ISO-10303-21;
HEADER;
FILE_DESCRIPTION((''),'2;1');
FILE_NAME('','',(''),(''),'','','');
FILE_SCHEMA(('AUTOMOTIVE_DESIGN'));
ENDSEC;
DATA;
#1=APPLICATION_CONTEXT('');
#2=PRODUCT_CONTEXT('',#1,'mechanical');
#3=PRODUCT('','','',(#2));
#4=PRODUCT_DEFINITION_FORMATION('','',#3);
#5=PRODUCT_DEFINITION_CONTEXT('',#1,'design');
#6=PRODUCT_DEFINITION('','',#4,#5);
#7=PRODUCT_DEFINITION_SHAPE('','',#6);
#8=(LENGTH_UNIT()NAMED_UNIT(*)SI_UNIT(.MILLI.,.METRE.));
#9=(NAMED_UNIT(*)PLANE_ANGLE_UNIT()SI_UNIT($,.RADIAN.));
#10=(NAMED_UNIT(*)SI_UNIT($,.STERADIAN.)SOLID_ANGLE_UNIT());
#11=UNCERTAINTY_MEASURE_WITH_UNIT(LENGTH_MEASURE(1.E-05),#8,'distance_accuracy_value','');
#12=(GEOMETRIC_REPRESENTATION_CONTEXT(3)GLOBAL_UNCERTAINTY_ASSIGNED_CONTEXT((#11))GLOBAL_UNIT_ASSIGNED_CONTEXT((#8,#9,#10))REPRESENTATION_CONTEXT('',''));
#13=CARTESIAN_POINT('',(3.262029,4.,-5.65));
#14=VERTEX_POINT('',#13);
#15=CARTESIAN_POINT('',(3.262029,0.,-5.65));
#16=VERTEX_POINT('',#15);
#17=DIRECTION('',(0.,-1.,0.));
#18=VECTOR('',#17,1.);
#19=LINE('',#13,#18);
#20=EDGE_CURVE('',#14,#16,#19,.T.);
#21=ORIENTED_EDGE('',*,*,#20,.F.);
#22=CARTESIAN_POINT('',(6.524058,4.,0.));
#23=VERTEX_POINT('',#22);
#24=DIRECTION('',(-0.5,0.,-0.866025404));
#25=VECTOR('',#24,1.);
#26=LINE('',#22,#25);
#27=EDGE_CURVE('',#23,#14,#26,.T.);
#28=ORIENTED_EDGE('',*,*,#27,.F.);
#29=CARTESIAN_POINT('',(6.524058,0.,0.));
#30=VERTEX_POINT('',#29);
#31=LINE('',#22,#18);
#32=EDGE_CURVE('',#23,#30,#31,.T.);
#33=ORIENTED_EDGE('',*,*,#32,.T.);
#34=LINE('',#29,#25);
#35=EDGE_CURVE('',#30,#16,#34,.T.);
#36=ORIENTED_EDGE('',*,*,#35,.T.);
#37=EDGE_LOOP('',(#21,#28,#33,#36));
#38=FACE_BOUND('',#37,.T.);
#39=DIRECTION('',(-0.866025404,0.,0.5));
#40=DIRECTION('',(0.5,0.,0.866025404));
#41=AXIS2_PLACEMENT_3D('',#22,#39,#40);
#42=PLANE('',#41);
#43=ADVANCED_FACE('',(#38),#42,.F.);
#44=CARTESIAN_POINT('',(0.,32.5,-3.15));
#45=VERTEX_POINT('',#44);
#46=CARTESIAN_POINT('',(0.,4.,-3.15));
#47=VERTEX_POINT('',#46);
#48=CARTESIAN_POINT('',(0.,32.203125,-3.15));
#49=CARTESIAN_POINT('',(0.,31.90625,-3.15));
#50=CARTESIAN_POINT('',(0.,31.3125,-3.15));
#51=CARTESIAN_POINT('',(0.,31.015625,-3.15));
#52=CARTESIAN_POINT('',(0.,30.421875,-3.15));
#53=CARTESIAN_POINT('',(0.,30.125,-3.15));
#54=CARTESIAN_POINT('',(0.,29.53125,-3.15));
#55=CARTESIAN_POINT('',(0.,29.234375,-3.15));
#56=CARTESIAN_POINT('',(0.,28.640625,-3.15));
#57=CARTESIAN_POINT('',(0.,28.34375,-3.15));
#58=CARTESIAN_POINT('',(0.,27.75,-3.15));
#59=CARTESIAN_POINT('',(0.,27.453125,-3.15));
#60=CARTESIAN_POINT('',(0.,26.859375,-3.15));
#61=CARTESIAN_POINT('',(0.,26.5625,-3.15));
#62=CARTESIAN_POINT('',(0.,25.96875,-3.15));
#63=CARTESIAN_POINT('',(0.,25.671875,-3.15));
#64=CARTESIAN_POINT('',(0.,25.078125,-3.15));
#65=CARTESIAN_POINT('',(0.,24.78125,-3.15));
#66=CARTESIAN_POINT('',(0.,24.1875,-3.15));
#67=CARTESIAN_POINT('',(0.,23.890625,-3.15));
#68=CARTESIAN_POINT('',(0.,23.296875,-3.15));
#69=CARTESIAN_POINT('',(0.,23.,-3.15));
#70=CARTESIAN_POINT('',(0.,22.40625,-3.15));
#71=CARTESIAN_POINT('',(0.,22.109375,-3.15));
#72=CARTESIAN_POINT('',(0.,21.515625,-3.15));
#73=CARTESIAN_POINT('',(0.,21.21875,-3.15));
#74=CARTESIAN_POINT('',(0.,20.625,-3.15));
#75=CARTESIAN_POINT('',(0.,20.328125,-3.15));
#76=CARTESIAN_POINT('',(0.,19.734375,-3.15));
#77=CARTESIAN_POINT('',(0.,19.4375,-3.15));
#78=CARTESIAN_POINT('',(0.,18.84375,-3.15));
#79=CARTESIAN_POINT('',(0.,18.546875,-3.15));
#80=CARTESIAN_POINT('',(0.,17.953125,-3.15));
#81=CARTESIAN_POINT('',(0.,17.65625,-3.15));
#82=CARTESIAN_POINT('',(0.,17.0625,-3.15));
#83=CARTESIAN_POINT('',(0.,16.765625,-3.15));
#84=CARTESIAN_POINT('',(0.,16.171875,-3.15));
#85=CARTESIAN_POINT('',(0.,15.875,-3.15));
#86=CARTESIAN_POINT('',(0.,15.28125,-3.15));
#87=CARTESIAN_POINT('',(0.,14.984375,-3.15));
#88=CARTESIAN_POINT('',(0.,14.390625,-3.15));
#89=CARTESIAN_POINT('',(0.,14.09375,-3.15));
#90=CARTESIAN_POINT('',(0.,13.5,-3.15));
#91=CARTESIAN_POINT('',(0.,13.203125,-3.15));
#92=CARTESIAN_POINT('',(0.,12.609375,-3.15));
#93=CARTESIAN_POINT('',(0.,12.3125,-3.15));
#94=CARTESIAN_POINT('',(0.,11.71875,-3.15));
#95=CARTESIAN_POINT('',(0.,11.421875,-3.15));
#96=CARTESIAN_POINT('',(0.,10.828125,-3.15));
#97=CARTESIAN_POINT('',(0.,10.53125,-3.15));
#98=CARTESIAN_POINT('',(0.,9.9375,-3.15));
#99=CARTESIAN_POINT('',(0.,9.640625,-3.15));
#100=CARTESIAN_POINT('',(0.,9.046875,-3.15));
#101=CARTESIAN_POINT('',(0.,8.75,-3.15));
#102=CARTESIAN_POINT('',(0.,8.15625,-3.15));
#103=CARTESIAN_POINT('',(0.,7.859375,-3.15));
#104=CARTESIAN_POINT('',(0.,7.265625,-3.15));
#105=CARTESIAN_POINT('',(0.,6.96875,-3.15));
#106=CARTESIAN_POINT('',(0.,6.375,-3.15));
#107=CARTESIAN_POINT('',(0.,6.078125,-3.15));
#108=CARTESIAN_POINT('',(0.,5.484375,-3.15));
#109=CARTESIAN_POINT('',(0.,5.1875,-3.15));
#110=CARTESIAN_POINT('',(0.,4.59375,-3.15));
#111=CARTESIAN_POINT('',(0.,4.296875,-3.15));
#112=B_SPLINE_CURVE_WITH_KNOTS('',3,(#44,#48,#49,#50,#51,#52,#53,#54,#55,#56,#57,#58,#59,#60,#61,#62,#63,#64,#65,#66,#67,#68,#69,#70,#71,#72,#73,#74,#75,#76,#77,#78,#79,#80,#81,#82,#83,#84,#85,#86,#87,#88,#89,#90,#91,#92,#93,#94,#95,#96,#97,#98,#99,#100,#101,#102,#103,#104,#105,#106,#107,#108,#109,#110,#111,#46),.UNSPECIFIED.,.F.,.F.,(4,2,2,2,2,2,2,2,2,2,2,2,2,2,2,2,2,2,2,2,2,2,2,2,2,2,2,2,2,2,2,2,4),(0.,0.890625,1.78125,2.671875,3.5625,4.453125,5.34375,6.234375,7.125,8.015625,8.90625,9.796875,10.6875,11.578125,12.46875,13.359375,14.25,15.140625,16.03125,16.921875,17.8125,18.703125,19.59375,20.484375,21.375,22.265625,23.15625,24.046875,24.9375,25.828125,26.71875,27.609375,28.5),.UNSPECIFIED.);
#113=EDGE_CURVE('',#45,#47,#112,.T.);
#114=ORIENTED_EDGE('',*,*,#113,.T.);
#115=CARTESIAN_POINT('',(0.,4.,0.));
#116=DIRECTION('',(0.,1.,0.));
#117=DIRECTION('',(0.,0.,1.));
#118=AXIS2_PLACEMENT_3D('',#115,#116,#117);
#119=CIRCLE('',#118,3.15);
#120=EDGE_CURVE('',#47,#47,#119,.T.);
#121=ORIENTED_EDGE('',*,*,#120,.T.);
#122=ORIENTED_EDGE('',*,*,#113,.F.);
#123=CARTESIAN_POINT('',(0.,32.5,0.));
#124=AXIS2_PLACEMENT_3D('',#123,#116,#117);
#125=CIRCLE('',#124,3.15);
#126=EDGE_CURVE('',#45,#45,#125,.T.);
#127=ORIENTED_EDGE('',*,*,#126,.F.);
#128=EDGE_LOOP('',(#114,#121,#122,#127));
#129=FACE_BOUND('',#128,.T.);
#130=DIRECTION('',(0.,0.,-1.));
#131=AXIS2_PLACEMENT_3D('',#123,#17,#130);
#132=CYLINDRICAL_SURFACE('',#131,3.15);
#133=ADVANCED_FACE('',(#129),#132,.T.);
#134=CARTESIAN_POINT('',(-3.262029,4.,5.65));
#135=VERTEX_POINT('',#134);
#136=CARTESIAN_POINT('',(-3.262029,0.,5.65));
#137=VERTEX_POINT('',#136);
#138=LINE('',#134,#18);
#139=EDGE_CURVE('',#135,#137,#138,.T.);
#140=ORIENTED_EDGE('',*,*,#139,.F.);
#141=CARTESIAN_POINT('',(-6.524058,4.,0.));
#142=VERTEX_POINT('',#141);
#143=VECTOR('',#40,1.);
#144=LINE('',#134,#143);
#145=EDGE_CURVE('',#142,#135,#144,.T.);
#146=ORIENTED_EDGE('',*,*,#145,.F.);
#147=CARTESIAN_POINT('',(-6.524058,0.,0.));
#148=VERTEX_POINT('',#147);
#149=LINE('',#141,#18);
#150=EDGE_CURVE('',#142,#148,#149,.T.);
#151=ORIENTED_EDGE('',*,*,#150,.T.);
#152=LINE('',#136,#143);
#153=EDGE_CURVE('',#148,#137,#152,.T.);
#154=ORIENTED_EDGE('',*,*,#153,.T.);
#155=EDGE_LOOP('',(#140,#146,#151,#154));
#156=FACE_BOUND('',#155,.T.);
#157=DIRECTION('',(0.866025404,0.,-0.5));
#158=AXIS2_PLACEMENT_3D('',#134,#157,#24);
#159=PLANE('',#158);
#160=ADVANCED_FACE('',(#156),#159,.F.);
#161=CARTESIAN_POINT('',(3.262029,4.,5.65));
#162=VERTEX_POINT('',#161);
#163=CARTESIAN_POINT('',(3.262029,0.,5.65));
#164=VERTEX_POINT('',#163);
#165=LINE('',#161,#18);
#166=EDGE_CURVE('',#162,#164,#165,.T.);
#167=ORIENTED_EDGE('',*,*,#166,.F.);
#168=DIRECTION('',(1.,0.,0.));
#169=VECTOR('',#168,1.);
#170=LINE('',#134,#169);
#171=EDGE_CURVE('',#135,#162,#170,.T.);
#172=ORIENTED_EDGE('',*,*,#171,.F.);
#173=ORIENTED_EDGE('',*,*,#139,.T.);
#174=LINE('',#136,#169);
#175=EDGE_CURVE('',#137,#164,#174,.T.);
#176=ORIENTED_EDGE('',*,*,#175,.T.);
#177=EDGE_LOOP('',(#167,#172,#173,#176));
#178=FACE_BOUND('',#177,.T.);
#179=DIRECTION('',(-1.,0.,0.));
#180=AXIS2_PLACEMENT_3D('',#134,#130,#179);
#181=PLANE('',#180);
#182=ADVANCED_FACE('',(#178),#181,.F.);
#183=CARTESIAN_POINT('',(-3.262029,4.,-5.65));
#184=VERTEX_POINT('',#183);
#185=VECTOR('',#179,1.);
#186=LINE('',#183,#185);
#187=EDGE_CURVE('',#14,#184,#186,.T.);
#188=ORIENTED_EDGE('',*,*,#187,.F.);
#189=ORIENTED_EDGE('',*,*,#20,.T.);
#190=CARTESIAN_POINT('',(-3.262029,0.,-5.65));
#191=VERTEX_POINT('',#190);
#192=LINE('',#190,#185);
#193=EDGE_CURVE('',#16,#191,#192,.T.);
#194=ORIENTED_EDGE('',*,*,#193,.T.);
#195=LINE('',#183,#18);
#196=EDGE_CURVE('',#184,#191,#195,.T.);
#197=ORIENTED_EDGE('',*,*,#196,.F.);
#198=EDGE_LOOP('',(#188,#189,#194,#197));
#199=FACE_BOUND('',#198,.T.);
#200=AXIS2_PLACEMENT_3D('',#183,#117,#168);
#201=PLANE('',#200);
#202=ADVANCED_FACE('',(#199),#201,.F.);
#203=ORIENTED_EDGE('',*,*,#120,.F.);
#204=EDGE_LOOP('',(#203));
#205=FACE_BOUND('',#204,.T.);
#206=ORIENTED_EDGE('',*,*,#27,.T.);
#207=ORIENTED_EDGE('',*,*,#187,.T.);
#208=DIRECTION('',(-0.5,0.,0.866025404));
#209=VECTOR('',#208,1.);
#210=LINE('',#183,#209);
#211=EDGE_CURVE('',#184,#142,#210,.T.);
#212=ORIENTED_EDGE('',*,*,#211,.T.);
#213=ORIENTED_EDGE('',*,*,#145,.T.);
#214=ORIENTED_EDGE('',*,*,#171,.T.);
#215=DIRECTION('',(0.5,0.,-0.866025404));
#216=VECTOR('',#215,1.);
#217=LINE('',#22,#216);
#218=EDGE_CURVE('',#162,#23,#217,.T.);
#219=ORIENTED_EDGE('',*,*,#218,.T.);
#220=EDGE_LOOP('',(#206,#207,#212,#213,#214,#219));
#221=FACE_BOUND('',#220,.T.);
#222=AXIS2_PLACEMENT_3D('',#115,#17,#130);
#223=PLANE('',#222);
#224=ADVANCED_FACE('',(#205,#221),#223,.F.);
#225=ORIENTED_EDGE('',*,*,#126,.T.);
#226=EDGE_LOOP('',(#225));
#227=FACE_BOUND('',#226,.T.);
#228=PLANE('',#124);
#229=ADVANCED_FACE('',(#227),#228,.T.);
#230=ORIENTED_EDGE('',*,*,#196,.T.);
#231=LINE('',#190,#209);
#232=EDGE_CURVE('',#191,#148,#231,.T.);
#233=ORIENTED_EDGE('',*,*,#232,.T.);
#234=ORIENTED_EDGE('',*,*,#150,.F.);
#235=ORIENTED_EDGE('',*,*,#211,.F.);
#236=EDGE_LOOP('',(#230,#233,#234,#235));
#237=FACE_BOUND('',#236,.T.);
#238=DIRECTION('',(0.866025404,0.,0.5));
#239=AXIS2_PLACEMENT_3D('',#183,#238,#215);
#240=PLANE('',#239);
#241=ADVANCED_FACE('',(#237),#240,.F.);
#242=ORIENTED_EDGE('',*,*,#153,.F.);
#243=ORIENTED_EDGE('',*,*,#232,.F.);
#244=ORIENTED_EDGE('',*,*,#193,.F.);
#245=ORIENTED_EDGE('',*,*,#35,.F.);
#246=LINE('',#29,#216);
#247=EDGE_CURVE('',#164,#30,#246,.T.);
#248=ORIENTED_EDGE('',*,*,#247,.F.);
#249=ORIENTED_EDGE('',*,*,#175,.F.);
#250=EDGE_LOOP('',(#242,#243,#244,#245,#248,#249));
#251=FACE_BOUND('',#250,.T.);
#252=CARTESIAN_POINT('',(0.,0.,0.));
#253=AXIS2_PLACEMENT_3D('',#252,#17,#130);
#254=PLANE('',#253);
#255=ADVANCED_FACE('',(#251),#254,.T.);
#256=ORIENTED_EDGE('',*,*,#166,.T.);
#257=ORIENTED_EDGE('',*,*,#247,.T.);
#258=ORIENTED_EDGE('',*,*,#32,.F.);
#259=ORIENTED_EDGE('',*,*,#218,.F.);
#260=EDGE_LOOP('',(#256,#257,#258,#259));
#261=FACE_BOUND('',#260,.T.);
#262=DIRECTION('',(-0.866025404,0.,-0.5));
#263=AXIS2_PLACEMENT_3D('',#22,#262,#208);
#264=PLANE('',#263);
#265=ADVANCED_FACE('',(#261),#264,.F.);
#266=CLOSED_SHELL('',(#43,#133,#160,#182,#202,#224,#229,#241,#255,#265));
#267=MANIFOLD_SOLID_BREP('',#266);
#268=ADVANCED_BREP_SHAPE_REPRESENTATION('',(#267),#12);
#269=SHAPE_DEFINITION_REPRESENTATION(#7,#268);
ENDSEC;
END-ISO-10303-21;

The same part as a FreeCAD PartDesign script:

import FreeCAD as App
import Part
import Sketcher
from FreeCAD import Vector
Q = App.Units.Quantity

doc = App.newDocument("Part")
body = doc.addObject("PartDesign::Body", "Body")

# Sketch on XZ plane
sketch1 = doc.addObject("Sketcher::SketchObject", "Sketch")
body.addObject(sketch1)
sketch1.AttachmentSupport = (doc.XZ_Plane, [""])
sketch1.MapMode = "FlatFace"
sketch1.addGeometry(Part.LineSegment(Vector(3.262029, -5.65, 0), Vector(-3.262029, -5.65, 0)), False)
sketch1.addGeometry(Part.LineSegment(Vector(-3.262029, -5.65, 0), Vector(-6.524058, 0, 0)), False)
sketch1.addGeometry(Part.LineSegment(Vector(-6.524058, 0, 0), Vector(-3.262029, 5.65, 0)), False)
sketch1.addGeometry(Part.LineSegment(Vector(-3.262029, 5.65, 0), Vector(3.262029, 5.65, 0)), False)
sketch1.addGeometry(Part.LineSegment(Vector(3.262029, 5.65, 0), Vector(6.524058, 0, 0)), False)
sketch1.addGeometry(Part.LineSegment(Vector(6.524058, 0, 0), Vector(3.262029, -5.65, 0)), False)
sketch1.addConstraint(Sketcher.Constraint("Coincident", 0, 2, 1, 1))
sketch1.addConstraint(Sketcher.Constraint("Coincident", 1, 2, 2, 1))
sketch1.addConstraint(Sketcher.Constraint("Coincident", 2, 2, 3, 1))
sketch1.addConstraint(Sketcher.Constraint("Coincident", 3, 2, 4, 1))
sketch1.addConstraint(Sketcher.Constraint("Coincident", 4, 2, 5, 1))
sketch1.addConstraint(Sketcher.Constraint("Coincident", 5, 2, 0, 1))
sketch1.addConstraint(Sketcher.Constraint("Horizontal", 0))
sketch1.addConstraint(Sketcher.Constraint("Horizontal", 3))
sketch1.addConstraint(Sketcher.Constraint("Symmetric", 0, 2, 3, 2, -1, 1))
sketch1.addConstraint(Sketcher.Constraint("Symmetric", 1, 2, 4, 2, -1, 1))
sketch1.addConstraint(Sketcher.Constraint("PointOnObject", 1, 2, -1))
sketch1.addConstraint(Sketcher.Constraint("Parallel", 2, 5))
sketch1.addConstraint(Sketcher.Constraint("Vertical", 0, 2, 2, 2))
sketch1.addConstraint(Sketcher.Constraint("Angle", 1, Q("120 deg")))
sketch1.addConstraint(Sketcher.Constraint("DistanceY", 0, 2, 2, 2, 11.3))
sketch1.addConstraint(Sketcher.Constraint("DistanceX", 0, 2, 0, 1, 6.524058))
pad1 = doc.addObject("PartDesign::Pad", "Pad")
body.addObject(pad1)
pad1.Profile = sketch1
pad1.Length = 4
pad1.Reversed = True

# Sketch on XZ plane
sketch2 = doc.addObject("Sketcher::SketchObject", "Sketch001")
body.addObject(sketch2)
sketch2.AttachmentSupport = (doc.XZ_Plane, [""])
sketch2.MapMode = "FlatFace"
sketch2.AttachmentOffset = App.Placement(Vector(0, 0, -4), App.Rotation())
sketch2.addGeometry(Part.Circle(Vector(0, 0, 0), Vector(0, 0, 1), 3.15), False)
sketch2.addConstraint(Sketcher.Constraint("Coincident", 0, 3, -1, 1))
sketch2.addConstraint(Sketcher.Constraint("Diameter", 0, 6.3))
pad2 = doc.addObject("PartDesign::Pad", "Pad001")
body.addObject(pad2)
pad2.Profile = sketch2
pad2.Length = 28.5
pad2.Reversed = True

doc.recompute()
